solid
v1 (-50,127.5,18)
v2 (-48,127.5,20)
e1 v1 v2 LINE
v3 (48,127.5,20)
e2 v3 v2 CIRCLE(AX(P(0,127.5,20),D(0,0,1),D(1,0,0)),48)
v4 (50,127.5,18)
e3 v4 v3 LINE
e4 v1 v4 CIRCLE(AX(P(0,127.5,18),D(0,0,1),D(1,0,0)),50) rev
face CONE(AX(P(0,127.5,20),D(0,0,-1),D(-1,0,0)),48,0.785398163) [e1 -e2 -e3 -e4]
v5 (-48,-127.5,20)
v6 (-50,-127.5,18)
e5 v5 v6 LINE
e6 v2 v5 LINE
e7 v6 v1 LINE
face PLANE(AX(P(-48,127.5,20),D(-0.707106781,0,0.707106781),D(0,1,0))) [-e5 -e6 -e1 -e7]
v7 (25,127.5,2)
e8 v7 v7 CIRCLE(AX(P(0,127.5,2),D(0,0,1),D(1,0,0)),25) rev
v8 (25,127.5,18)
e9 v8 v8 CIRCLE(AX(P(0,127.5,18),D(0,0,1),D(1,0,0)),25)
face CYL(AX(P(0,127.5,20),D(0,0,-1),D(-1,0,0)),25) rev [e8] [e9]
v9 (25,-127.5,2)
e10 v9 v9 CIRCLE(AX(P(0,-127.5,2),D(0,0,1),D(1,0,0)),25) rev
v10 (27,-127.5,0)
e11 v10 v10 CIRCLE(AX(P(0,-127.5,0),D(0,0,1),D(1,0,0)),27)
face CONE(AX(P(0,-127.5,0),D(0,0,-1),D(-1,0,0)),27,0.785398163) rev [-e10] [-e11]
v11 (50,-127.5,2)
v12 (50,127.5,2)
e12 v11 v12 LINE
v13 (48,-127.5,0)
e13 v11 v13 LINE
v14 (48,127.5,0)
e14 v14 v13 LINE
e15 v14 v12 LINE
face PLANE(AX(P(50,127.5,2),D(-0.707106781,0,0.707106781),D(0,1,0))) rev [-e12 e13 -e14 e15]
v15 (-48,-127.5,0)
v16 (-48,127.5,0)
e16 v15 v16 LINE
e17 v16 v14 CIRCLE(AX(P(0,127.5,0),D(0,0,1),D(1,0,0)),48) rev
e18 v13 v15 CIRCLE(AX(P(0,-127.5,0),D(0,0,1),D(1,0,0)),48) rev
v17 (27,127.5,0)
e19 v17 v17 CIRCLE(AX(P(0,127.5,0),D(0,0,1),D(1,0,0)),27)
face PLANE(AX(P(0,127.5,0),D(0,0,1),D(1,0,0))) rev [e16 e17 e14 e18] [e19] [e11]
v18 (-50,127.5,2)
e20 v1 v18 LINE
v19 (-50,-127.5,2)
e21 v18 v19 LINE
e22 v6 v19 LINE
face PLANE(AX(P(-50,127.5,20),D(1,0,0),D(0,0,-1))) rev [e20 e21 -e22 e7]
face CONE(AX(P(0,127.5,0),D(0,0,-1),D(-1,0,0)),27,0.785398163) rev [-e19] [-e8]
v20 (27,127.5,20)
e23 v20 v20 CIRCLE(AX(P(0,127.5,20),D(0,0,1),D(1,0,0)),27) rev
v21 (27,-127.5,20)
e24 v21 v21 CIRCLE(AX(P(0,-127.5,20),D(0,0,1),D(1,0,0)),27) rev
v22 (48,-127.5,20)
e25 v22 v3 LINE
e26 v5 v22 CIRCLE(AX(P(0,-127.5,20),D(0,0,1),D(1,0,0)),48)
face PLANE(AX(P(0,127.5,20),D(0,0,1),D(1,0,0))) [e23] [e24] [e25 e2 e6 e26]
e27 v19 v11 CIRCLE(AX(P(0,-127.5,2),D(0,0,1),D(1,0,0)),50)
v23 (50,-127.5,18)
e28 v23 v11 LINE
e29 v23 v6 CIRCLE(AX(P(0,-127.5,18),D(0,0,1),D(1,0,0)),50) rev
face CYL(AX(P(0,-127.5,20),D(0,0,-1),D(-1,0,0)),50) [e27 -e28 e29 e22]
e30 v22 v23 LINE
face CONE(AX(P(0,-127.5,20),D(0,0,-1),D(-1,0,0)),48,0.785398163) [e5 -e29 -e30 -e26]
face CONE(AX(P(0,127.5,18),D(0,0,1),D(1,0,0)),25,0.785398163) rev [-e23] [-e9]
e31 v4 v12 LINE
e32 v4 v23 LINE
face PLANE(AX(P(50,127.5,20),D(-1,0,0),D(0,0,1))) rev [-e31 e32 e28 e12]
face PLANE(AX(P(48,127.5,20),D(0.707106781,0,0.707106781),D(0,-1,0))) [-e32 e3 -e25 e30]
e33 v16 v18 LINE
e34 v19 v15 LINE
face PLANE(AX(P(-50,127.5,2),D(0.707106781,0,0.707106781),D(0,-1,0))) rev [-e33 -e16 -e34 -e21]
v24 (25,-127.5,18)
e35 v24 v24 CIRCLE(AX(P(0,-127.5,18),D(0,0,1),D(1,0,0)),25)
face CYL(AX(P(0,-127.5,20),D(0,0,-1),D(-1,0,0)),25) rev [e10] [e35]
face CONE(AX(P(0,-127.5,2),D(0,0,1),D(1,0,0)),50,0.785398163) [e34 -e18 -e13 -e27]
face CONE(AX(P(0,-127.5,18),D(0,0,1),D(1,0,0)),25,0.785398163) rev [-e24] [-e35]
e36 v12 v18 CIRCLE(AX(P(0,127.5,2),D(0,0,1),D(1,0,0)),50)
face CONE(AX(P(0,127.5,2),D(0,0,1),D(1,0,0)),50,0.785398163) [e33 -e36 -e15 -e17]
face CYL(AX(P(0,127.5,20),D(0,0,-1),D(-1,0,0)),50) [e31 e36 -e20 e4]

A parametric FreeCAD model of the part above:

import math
import FreeCAD as App
import Part
import Sketcher

V = App.Vector
Q = App.Units.Quantity


def edges_at(feature, points):
    """Names of the edges that pass closest to the given points."""
    edges = feature.Shape.Edges
    near = lambda p: min(range(len(edges)), key=lambda i: edges[i].distToShape(Part.Vertex(*p))[0])
    return sorted({f"Edge{near(p) + 1}" for p in points})

doc = App.newDocument("Part")
body = doc.addObject("PartDesign::Body", "Body")

# Sketch on XY plane
sketch1 = body.newObject("Sketcher::SketchObject", "Sketch")
sketch1.AttachmentSupport = (doc.getObject("XY_Plane"), [""])
sketch1.MapMode = "FlatFace"
sketch1.addGeometry([
    Part.LineSegment(V(50, -128, 0), V(50, 128, 0)),  # 0
    Part.ArcOfCircle(Part.Circle(V(0, 128, 0), V(0, 0, 1), 50), math.radians(0), math.radians(180)),  # 1
    Part.LineSegment(V(-50, 128, 0), V(-50, -128, 0)),  # 2
    Part.ArcOfCircle(Part.Circle(V(0, -128, 0), V(0, 0, 1), 50), math.radians(180), math.radians(360)),  # 3
    Part.Circle(V(0, -128, 0), V(0, 0, 1), 25),  # 4
    Part.Circle(V(0, 128, 0), V(0, 0, 1), 25),  # 5
], False)
sketch1.addConstraint([
    Sketcher.Constraint("Tangent", 0, 2, 1, 1),
    Sketcher.Constraint("Tangent", 1, 2, 2, 1),
    Sketcher.Constraint("Tangent", 2, 2, 3, 1),
    Sketcher.Constraint("Tangent", 3, 2, 0, 1),
    Sketcher.Constraint("Vertical", 0),
    Sketcher.Constraint("Vertical", 2),
    Sketcher.Constraint("Coincident", 4, 3, 3, 3),
    Sketcher.Constraint("Coincident", 5, 3, 1, 3),
    Sketcher.Constraint("Equal", 4, 5),
    Sketcher.Constraint("Symmetric", 1, 3, 3, 3, -1, 1),
    Sketcher.Constraint("Diameter", 4, Q("50 mm")),
    Sketcher.Constraint("Radius", 1, Q("50 mm")),
    Sketcher.Constraint("DistanceY", 0, 1, 0, 2, Q("255 mm")),
])
pad1 = body.newObject("PartDesign::Pad", "Pad")
pad1.Profile = sketch1
pad1.Length = 20
doc.recompute()

chamfer = body.newObject("PartDesign::Chamfer", "Chamfer")
chamfer.Base = (pad1, edges_at(pad1, [
    (-25, 127.5, 0),
    (-25, 127.5, 20),
    (0, -177.5, 20),
    (-25, -127.5, 0),
    (-25, -127.5, 20),
    (50, 0, 20),
    (0, 177.5, 20),
    (50, 0, 0),
    (0, -177.5, 0),
    (-50, 0, 0),
    (0, 177.5, 0),
    (-50, 0, 20),
]))
chamfer.Size = 2

doc.recompute()
